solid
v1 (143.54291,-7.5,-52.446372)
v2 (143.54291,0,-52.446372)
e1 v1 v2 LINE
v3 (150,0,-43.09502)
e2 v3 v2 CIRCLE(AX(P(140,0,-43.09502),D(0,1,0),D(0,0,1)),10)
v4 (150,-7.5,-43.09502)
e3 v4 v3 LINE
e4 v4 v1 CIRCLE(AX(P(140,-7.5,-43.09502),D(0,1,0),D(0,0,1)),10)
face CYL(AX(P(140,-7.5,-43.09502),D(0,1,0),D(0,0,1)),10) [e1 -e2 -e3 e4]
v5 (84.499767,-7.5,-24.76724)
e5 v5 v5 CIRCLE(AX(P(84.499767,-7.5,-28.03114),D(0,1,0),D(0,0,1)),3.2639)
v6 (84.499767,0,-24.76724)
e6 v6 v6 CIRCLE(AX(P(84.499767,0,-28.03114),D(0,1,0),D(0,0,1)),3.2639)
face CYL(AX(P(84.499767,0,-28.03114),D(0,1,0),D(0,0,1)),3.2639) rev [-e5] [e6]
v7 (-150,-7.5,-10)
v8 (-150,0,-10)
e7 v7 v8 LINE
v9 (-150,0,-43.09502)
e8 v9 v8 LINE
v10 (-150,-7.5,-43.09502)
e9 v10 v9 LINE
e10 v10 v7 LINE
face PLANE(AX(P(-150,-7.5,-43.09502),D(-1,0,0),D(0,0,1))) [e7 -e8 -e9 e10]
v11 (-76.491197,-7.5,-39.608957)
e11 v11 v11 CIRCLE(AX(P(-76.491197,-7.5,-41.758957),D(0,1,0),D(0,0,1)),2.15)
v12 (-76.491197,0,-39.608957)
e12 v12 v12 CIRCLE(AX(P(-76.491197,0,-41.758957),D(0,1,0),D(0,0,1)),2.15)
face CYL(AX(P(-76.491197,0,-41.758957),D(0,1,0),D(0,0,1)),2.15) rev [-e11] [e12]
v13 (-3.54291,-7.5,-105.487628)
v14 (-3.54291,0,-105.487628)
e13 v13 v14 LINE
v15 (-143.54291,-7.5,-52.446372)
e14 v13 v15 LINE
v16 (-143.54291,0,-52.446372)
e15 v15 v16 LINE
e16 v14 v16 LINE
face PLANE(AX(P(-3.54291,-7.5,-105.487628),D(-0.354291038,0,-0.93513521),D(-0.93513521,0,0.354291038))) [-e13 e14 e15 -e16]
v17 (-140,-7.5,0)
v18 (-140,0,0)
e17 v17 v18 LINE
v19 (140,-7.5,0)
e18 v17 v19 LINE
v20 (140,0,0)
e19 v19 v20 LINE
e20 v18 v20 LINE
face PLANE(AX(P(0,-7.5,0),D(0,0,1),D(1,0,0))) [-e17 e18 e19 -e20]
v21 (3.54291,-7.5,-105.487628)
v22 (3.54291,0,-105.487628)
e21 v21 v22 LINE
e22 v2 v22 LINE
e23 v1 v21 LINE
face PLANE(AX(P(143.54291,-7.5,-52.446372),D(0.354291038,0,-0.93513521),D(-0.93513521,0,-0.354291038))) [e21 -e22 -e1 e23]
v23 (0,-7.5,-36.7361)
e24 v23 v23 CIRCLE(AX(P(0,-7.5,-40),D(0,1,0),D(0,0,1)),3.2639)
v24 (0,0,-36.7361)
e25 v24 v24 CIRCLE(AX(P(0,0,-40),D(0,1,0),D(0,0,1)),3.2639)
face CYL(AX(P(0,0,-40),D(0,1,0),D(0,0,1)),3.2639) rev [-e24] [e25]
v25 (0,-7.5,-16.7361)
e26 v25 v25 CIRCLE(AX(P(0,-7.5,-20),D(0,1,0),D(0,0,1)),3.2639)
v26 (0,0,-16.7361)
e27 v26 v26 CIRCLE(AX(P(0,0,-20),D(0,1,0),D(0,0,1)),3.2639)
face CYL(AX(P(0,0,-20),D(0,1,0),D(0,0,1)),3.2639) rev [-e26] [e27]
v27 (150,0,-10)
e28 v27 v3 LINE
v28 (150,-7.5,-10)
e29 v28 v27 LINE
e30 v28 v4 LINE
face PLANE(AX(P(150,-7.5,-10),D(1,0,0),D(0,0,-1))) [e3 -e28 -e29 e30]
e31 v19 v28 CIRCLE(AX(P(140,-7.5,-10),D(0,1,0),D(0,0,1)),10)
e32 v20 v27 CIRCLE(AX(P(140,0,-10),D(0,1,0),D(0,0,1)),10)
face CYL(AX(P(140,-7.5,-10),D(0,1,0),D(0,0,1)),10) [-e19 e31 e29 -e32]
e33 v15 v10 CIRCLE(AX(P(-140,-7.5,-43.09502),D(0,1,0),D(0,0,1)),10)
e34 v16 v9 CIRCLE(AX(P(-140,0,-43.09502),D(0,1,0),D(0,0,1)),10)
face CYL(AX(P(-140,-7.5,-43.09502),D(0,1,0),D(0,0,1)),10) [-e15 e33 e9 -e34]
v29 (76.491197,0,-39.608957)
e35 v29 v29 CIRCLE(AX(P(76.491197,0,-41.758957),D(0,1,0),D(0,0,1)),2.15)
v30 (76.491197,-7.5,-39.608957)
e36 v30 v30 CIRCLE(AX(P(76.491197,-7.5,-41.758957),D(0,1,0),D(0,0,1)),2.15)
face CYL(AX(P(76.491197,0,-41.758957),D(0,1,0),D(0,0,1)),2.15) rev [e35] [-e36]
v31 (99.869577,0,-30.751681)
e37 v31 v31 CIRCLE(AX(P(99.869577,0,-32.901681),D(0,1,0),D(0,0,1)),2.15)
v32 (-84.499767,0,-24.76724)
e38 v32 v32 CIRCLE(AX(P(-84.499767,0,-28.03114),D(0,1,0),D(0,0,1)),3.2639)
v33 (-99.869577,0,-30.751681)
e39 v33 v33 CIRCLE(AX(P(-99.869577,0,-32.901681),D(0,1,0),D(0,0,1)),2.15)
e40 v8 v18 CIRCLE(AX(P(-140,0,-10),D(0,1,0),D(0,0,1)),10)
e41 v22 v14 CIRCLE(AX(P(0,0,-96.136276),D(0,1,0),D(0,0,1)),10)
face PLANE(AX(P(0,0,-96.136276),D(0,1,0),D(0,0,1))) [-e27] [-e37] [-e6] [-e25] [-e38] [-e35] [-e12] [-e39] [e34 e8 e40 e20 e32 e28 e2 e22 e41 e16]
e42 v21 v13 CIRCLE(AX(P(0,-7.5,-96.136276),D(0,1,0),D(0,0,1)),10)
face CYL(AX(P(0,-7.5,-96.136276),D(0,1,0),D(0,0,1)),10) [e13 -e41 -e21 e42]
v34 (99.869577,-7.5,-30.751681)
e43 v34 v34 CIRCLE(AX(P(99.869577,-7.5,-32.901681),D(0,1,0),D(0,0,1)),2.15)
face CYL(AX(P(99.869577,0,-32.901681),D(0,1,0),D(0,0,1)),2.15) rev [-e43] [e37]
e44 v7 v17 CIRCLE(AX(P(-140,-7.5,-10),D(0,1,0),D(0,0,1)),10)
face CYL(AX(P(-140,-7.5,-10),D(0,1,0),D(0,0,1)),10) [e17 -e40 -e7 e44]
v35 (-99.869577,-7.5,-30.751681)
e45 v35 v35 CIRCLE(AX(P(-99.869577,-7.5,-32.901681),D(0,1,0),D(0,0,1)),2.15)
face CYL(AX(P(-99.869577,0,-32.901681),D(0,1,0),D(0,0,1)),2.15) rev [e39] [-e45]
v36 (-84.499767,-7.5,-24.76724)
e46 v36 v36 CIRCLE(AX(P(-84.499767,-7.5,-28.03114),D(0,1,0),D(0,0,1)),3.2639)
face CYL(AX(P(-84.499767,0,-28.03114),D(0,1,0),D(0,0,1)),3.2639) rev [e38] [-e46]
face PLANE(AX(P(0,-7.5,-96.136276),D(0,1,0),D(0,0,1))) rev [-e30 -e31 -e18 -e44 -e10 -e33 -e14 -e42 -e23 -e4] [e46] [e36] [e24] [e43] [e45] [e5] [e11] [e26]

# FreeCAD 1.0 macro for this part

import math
import FreeCAD as App
import Part
import Sketcher
from FreeCAD import Vector
Q = App.Units.Quantity

doc = App.newDocument("Part")
params = doc.addObject("Spreadsheet::Sheet", "Params")
for row, (alias, value) in enumerate([
    ("sketch1_radius", "10 mm"),
    ("sketch1_width", "280 mm"),
    ("pad1_length", "7.5 mm"),
    ("hole_diameter", "6.5278 mm"),
    ("sketch3_diameter", "4.3 mm"),
    ("hole2_diameter", "4.3 mm"),
], start=1):
    params.set(f"A{row}", alias)
    params.set(f"B{row}", "=" + value)
    params.setAlias(f"B{row}", alias)

body = doc.addObject("PartDesign::Body", "Body")

# Sketch on XZ plane
sketch1 = doc.addObject("Sketcher::SketchObject", "Sketch")
body.addObject(sketch1)
sketch1.AttachmentSupport = (doc.XZ_Plane, [""])
sketch1.MapMode = "FlatFace"
sketch1.addGeometry([
    Part.ArcOfCircle(Part.Circle(Vector(140, -10, 0), Vector(0, 0, 1), 10), math.radians(0), math.radians(90)),  # 0
    Part.LineSegment(Vector(150, -10, 0), Vector(150, -43.09502, 0)),  # 1
    Part.ArcOfCircle(Part.Circle(Vector(140, -43.09502, 0), Vector(0, 0, 1), 10), math.radians(-69.25), math.radians(0)),  # 2
    Part.LineSegment(Vector(143.54291, -52.446372, 0), Vector(3.54291, -105.487628, 0)),  # 3
    Part.ArcOfCircle(Part.Circle(Vector(0, -96.136276, 0), Vector(0, 0, 1), 10), math.radians(-110.75), math.radians(-69.25)),  # 4
    Part.LineSegment(Vector(-3.54291, -105.487628, 0), Vector(-143.54291, -52.446372, 0)),  # 5
    Part.ArcOfCircle(Part.Circle(Vector(-140, -43.09502, 0), Vector(0, 0, 1), 10), math.radians(180), math.radians(249.25)),  # 6
    Part.LineSegment(Vector(-150, -43.09502, 0), Vector(-150, -10, 0)),  # 7
    Part.ArcOfCircle(Part.Circle(Vector(-140, -10, 0), Vector(0, 0, 1), 10), math.radians(90), math.radians(180)),  # 8
    Part.LineSegment(Vector(-140, 0, 0), Vector(140, 0, 0)),  # 9
], False)
sketch1.addConstraint([
    Sketcher.Constraint("Tangent", 0, 1, 1, 1),
    Sketcher.Constraint("Tangent", 1, 2, 2, 2),
    Sketcher.Constraint("Tangent", 2, 1, 3, 1),
    Sketcher.Constraint("Tangent", 3, 2, 4, 2),
    Sketcher.Constraint("Tangent", 4, 1, 5, 1),
    Sketcher.Constraint("Tangent", 5, 2, 6, 2),
    Sketcher.Constraint("Tangent", 6, 1, 7, 1),
    Sketcher.Constraint("Tangent", 7, 2, 8, 2),
    Sketcher.Constraint("Tangent", 8, 1, 9, 1),
    Sketcher.Constraint("Tangent", 9, 2, 0, 2),
    Sketcher.Constraint("Vertical", 1),
    Sketcher.Constraint("Vertical", 7),
    Sketcher.Constraint("Horizontal", 9),
    Sketcher.Constraint("Equal", 0, 2),
    Sketcher.Constraint("Equal", 2, 4),
    Sketcher.Constraint("Equal", 4, 6),
    Sketcher.Constraint("Equal", 6, 8),
    Sketcher.Constraint("Symmetric", 8, 1, 9, 2, -1, 1),
    Sketcher.Constraint("Symmetric", 3, 2, 4, 1, -2),
    Sketcher.Constraint("Radius", 0, 10.0),
    Sketcher.Constraint("DistanceX", 9, 1, 9, 2, 280.0),
    Sketcher.Constraint("Angle", 3, Q("-159.25 deg")),
    Sketcher.Constraint("DistanceY", 1, 2, 1, 1, 33.09502),
])
sketch1.setExpression("Constraints[19]", "Params.sketch1_radius")
sketch1.setExpression("Constraints[20]", "Params.sketch1_width")
pad1 = doc.addObject("PartDesign::Pad", "Pad")
body.addObject(pad1)
pad1.Profile = sketch1
pad1.setExpression("Length", "Params.pad1_length")

# Sketch on XZ plane
sketch2 = doc.addObject("Sketcher::SketchObject", "Sketch001")
body.addObject(sketch2)
sketch2.AttachmentSupport = (doc.XZ_Plane, [""])
sketch2.MapMode = "FlatFace"
sketch2.addGeometry([
    Part.Circle(Vector(84.499767, -28.03114, 0), Vector(0, 0, 1), 3.2639),
    Part.Circle(Vector(-84.499767, -28.03114, 0), Vector(0, 0, 1), 3.2639),
    Part.Circle(Vector(0, -40, 0), Vector(0, 0, 1), 3.2639),
    Part.Circle(Vector(0, -20, 0), Vector(0, 0, 1), 3.2639),
], False)
sketch2.addConstraint([
    Sketcher.Constraint("Equal", 0, 1),
    Sketcher.Constraint("Equal", 1, 2),
    Sketcher.Constraint("Equal", 2, 3),
    Sketcher.Constraint("Symmetric", 0, 3, 1, 3, -2),
    Sketcher.Constraint("PointOnObject", 2, 3, -2),
    Sketcher.Constraint("PointOnObject", 3, 3, -2),
    Sketcher.Constraint("DistanceY", 2, 3, -1, 1, 40.0),
    Sketcher.Constraint("DistanceY", 3, 3, -1, 1, 20.0),
    Sketcher.Constraint("Diameter", 0, 6.5278),
    Sketcher.Constraint("DistanceY", 0, 3, -1, 1, 28.03114),
    Sketcher.Constraint("DistanceX", -1, 1, 0, 3, 84.499767),
])
doc.recompute()
hole = doc.addObject("PartDesign::Hole", "Hole")
body.addObject(hole)
hole.Profile = sketch2
hole.ThreadType = "None"
hole.setExpression("Diameter", "Params.hole_diameter")
hole.DepthType = "ThroughAll"
hole.Reversed = True

# Sketch on XZ plane
sketch3 = doc.addObject("Sketcher::SketchObject", "Sketch002")
body.addObject(sketch3)
sketch3.AttachmentSupport = (doc.XZ_Plane, [""])
sketch3.MapMode = "FlatFace"
sketch3.addGeometry([
    Part.Circle(Vector(-76.491197, -41.758957, 0), Vector(0, 0, 1), 2.15),
    Part.Circle(Vector(-99.869577, -32.901681, 0), Vector(0, 0, 1), 2.15),
    Part.Circle(Vector(76.491197, -41.758957, 0), Vector(0, 0, 1), 2.15),
    Part.Circle(Vector(99.869577, -32.901681, 0), Vector(0, 0, 1), 2.15),
], False)
sketch3.addConstraint([
    Sketcher.Constraint("Equal", 0, 1),
    Sketcher.Constraint("Equal", 1, 2),
    Sketcher.Constraint("Equal", 2, 3),
    Sketcher.Constraint("Symmetric", 0, 3, 2, 3, -2),
    Sketcher.Constraint("Symmetric", 1, 3, 3, 3, -2),
    Sketcher.Constraint("Diameter", 0, 4.3),
    Sketcher.Constraint("DistanceY", 1, 3, -1, 1, 32.901681),
    Sketcher.Constraint("DistanceX", 1, 3, 0, 3, 23.37838),
    Sketcher.Constraint("DistanceX", 0, 3, -1, 1, 76.491197),
    Sketcher.Constraint("DistanceY", 0, 3, -1, 1, 41.758957),
])
sketch3.setExpression("Constraints[5]", "Params.sketch3_diameter")
doc.recompute()
hole2 = doc.addObject("PartDesign::Hole", "Hole001")
body.addObject(hole2)
hole2.Profile = sketch3
hole2.ThreadType = "None"
hole2.setExpression("Diameter", "Params.hole2_diameter")
hole2.DepthType = "ThroughAll"
hole2.Reversed = True

doc.recompute()
